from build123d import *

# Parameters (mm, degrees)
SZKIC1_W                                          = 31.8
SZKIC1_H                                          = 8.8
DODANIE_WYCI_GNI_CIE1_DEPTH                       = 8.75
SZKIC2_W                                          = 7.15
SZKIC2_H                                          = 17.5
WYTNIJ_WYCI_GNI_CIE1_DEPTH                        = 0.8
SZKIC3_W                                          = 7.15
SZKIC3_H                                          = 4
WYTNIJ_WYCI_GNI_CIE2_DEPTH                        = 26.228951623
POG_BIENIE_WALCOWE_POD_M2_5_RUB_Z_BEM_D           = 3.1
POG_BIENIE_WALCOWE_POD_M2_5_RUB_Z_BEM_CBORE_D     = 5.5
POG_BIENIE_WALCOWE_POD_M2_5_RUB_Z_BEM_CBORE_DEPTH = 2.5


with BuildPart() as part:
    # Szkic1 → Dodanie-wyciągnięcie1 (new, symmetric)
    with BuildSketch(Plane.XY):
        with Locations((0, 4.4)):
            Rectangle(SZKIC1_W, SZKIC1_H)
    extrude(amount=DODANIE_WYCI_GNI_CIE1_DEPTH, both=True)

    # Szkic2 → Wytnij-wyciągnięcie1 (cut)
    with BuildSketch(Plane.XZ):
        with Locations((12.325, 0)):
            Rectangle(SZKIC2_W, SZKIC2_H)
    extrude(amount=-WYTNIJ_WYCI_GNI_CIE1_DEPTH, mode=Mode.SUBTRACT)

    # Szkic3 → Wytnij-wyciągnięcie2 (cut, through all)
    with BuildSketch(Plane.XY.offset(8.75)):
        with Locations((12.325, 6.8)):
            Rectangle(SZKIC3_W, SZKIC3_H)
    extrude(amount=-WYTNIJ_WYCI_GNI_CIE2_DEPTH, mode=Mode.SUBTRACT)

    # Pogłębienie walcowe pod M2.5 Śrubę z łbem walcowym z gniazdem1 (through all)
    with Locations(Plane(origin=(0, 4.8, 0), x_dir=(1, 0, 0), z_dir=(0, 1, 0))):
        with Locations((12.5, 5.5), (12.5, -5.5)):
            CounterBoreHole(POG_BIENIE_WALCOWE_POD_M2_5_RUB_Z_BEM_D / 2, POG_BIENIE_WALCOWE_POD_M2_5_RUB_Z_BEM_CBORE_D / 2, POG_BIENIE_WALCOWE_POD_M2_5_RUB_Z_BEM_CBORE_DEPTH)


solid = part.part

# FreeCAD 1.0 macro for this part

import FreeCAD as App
import Part
import Sketcher
Q = App.Units.Quantity

doc = App.newDocument("Part")
params = doc.addObject("Spreadsheet::Sheet", "Params")
for row, (alias, value) in enumerate([
    ("sketch1_width", "31.8 mm"),
    ("sketch1_height", "8.8 mm"),
    ("pad1_length", "17.5 mm"),
    ("sketch2_height", "17.5 mm"),
    ("sketch2_width", "7.15 mm"),
    ("pocket1_length", "0.8 mm"),
    ("sketch3_height", "4 mm"),
    ("sketch3_width", "7.15 mm"),
    ("sketch4_diameter", "3.1 mm"),
    ("hole_diameter", "3.1 mm"),
    ("hole_cbore_diameter", "5.5 mm"),
    ("hole_cbore_depth", "2.5 mm"),
], start=1):
    params.set(f"A{row}", alias)
    params.set(f"B{row}", "=" + value)
    params.setAlias(f"B{row}", alias)

body = doc.addObject("PartDesign::Body", "Body")

# Sketch on XY plane
sketch1 = doc.addObject("Sketcher::SketchObject", "Sketch")
body.addObject(sketch1)
sketch1.AttachmentSupport = (doc.XY_Plane, [""])
sketch1.MapMode = "FlatFace"
sketch1.addGeometry(Part.LineSegment(App.Vector(-16, 9, 0), App.Vector(-16, 0, 0)), False)
sketch1.addGeometry(Part.LineSegment(App.Vector(-16, 0, 0), App.Vector(16, 0, 0)), False)
sketch1.addGeometry(Part.LineSegment(App.Vector(16, 0, 0), App.Vector(16, 9, 0)), False)
sketch1.addGeometry(Part.LineSegment(App.Vector(16, 9, 0), App.Vector(-16, 9, 0)), False)
sketch1.addConstraint(Sketcher.Constraint("Coincident", 0, 2, 1, 1))
sketch1.addConstraint(Sketcher.Constraint("Coincident", 1, 2, 2, 1))
sketch1.addConstraint(Sketcher.Constraint("Coincident", 2, 2, 3, 1))
sketch1.addConstraint(Sketcher.Constraint("Coincident", 3, 2, 0, 1))
sketch1.addConstraint(Sketcher.Constraint("Vertical", 0))
sketch1.addConstraint(Sketcher.Constraint("Horizontal", 1))
sketch1.addConstraint(Sketcher.Constraint("Vertical", 2))
sketch1.addConstraint(Sketcher.Constraint("Horizontal", 3))
sketch1.addConstraint(Sketcher.Constraint("Symmetric", 0, 2, 1, 2, -1, 1))
sketch1.addConstraint(Sketcher.Constraint("DistanceX", 1, 1, 1, 2, Q("31.8 mm")))
sketch1.addConstraint(Sketcher.Constraint("DistanceY", 0, 2, 0, 1, Q("8.8 mm")))
sketch1.setExpression("Constraints[9]", "Params.sketch1_width")
sketch1.setExpression("Constraints[10]", "Params.sketch1_height")
pad1 = doc.addObject("PartDesign::Pad", "Pad")
body.addObject(pad1)
pad1.Profile = sketch1
pad1.setExpression("Length", "Params.pad1_length")
pad1.Midplane = True

# Sketch on XZ plane
sketch2 = doc.addObject("Sketcher::SketchObject", "Sketch001")
body.addObject(sketch2)
sketch2.AttachmentSupport = (doc.XZ_Plane, [""])
sketch2.MapMode = "FlatFace"
sketch2.addGeometry(Part.LineSegment(App.Vector(9, 9, 0), App.Vector(9, -9, 0)), False)
sketch2.addGeometry(Part.LineSegment(App.Vector(9, -9, 0), App.Vector(16, -9, 0)), False)
sketch2.addGeometry(Part.LineSegment(App.Vector(16, -9, 0), App.Vector(16, 9, 0)), False)
sketch2.addGeometry(Part.LineSegment(App.Vector(16, 9, 0), App.Vector(9, 9, 0)), False)
sketch2.addConstraint(Sketcher.Constraint("Coincident", 0, 2, 1, 1))
sketch2.addConstraint(Sketcher.Constraint("Coincident", 1, 2, 2, 1))
sketch2.addConstraint(Sketcher.Constraint("Coincident", 2, 2, 3, 1))
sketch2.addConstraint(Sketcher.Constraint("Coincident", 3, 2, 0, 1))
sketch2.addConstraint(Sketcher.Constraint("Vertical", 0))
sketch2.addConstraint(Sketcher.Constraint("Horizontal", 1))
sketch2.addConstraint(Sketcher.Constraint("Vertical", 2))
sketch2.addConstraint(Sketcher.Constraint("Horizontal", 3))
sketch2.addConstraint(Sketcher.Constraint("DistanceY", 0, 2, 0, 1, Q("17.5 mm")))
sketch2.addConstraint(Sketcher.Constraint("DistanceX", 1, 1, 1, 2, Q("7.15 mm")))
sketch2.addConstraint(Sketcher.Constraint("DistanceX", -1, 1, 1, 2, Q("15.9 mm")))
sketch2.addConstraint(Sketcher.Constraint("DistanceY", 0, 2, -1, 1, Q("8.75 mm")))
sketch2.setExpression("Constraints[8]", "Params.sketch2_height")
sketch2.setExpression("Constraints[9]", "Params.sketch2_width")
pocket1 = doc.addObject("PartDesign::Pocket", "Pocket")
body.addObject(pocket1)
pocket1.Profile = sketch2
pocket1.setExpression("Length", "Params.pocket1_length")

# Sketch on XY plane
sketch3 = doc.addObject("Sketcher::SketchObject", "Sketch002")
body.addObject(sketch3)
sketch3.AttachmentSupport = (doc.XY_Plane, [""])
sketch3.MapMode = "FlatFace"
sketch3.AttachmentOffset = App.Placement(App.Vector(0, 0, 8.75), App.Rotation())
sketch3.addGeometry(Part.LineSegment(App.Vector(8.8, 8.8, 0), App.Vector(8.8, 4.8, 0)), False)
sketch3.addGeometry(Part.LineSegment(App.Vector(8.8, 4.8, 0), App.Vector(15.9, 4.8, 0)), False)
sketch3.addGeometry(Part.LineSegment(App.Vector(15.9, 4.8, 0), App.Vector(15.9, 8.8, 0)), False)
sketch3.addGeometry(Part.LineSegment(App.Vector(15.9, 8.8, 0), App.Vector(8.8, 8.8, 0)), False)
sketch3.addConstraint(Sketcher.Constraint("Coincident", 0, 2, 1, 1))
sketch3.addConstraint(Sketcher.Constraint("Coincident", 1, 2, 2, 1))
sketch3.addConstraint(Sketcher.Constraint("Coincident", 2, 2, 3, 1))
sketch3.addConstraint(Sketcher.Constraint("Coincident", 3, 2, 0, 1))
sketch3.addConstraint(Sketcher.Constraint("Vertical", 0))
sketch3.addConstraint(Sketcher.Constraint("Horizontal", 1))
sketch3.addConstraint(Sketcher.Constraint("Vertical", 2))
sketch3.addConstraint(Sketcher.Constraint("Horizontal", 3))
sketch3.addConstraint(Sketcher.Constraint("DistanceY", 0, 2, 0, 1, Q("4 mm")))
sketch3.addConstraint(Sketcher.Constraint("DistanceX", 1, 1, 1, 2, Q("7.15 mm")))
sketch3.addConstraint(Sketcher.Constraint("DistanceY", -1, 1, 0, 2, Q("4.8 mm")))
sketch3.addConstraint(Sketcher.Constraint("DistanceX", -1, 1, 1, 2, Q("15.9 mm")))
sketch3.setExpression("Constraints[8]", "Params.sketch3_height")
sketch3.setExpression("Constraints[9]", "Params.sketch3_width")
pocket2 = doc.addObject("PartDesign::Pocket", "Pocket001")
body.addObject(pocket2)
pocket2.Profile = sketch3
pocket2.Type = "ThroughAll"

# Sketch on XZ plane
sketch4 = doc.addObject("Sketcher::SketchObject", "Sketch003")
body.addObject(sketch4)
sketch4.AttachmentSupport = (doc.XZ_Plane, [""])
sketch4.MapMode = "FlatFace"
sketch4.AttachmentOffset = App.Placement(App.Vector(0, 0, -4.8), App.Rotation())
sketch4.addGeometry(Part.Circle(App.Vector(12.5, -5.5, 0), App.Vector(0, 0, 1), 1.6), False)
sketch4.addGeometry(Part.Circle(App.Vector(12.5, 5.5, 0), App.Vector(0, 0, 1), 1.6), False)
sketch4.addConstraint(Sketcher.Constraint("Equal", 0, 1))
sketch4.addConstraint(Sketcher.Constraint("Symmetric", 0, 3, 1, 3, -1))
sketch4.addConstraint(Sketcher.Constraint("Diameter", 0, Q("3.1 mm")))
sketch4.addConstraint(Sketcher.Constraint("DistanceY", 0, 3, 1, 3, Q("11 mm")))
sketch4.addConstraint(Sketcher.Constraint("DistanceX", -1, 1, 0, 3, Q("12.5 mm")))
sketch4.setExpression("Constraints[2]", "Params.sketch4_diameter")
doc.recompute()
hole = doc.addObject("PartDesign::Hole", "Hole")
body.addObject(hole)
hole.Profile = sketch4
hole.ThreadType = "None"
hole.setExpression("Diameter", "Params.hole_diameter")
hole.DepthType = "ThroughAll"
hole.HoleCutType = "Counterbore"
hole.setExpression("HoleCutDiameter", "Params.hole_cbore_diameter")
hole.setExpression("HoleCutDepth", "Params.hole_cbore_depth")
hole.Reversed = True

doc.recompute()
